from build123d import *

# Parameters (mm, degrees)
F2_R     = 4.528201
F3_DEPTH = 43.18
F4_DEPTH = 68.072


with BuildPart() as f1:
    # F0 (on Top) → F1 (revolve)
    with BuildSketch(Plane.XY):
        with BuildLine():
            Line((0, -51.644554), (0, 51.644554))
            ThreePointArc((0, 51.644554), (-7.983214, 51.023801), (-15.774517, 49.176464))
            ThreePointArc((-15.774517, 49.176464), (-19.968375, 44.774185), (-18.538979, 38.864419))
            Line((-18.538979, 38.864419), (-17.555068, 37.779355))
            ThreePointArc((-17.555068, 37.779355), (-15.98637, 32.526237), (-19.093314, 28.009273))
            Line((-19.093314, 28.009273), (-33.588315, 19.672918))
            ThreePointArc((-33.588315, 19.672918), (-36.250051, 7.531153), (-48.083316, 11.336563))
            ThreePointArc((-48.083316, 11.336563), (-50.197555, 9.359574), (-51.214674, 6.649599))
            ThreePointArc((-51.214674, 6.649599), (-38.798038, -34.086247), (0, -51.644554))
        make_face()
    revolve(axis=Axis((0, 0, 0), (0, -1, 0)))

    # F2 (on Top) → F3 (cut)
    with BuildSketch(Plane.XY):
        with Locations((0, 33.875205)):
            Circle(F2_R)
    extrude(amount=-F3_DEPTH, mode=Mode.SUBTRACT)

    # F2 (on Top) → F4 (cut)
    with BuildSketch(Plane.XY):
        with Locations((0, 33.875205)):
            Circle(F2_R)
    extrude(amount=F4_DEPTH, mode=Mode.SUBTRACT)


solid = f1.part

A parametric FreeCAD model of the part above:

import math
import FreeCAD as App
import Part
import Sketcher
Q = App.Units.Quantity

doc = App.newDocument("Part")
body = doc.addObject("PartDesign::Body", "Body")

# Sketch on XY plane
sketch1 = body.newObject("Sketcher::SketchObject", "Sketch")
sketch1.AttachmentSupport = (doc.getObject("XY_Plane"), [""])
sketch1.MapMode = "FlatFace"
sketch1.addGeometry([
    Part.LineSegment(App.Vector(0, -51.6, 0), App.Vector(0, 51.6, 0)),  # 0
    Part.ArcOfCircle(Part.Circle(App.Vector(0, 0, 0), App.Vector(0, 0, 1), 51.6), math.radians(90), math.radians(107.78)),  # 1
    Part.ArcOfCircle(Part.Circle(App.Vector(-13.8, 43.1, 0), App.Vector(0, 0, 1), 6.3), math.radians(108), math.radians(222)),  # 2
    Part.LineSegment(App.Vector(-18.5, 38.9, 0), App.Vector(-17.6, 37.8, 0)),  # 3
    Part.ArcOfCircle(Part.Circle(App.Vector(-22.3, 33.5, 0), App.Vector(0, 0, 1), 6.3), math.radians(-60), math.radians(42)),  # 4
    Part.LineSegment(App.Vector(-19.1, 28, 0), App.Vector(-33.6, 19.7, 0)),  # 5
    Part.ArcOfCircle(Part.Circle(App.Vector(-40.4, 14.8, 0), App.Vector(0, 0, 1), 8.4), math.radians(-156), math.radians(35)),  # 6
    Part.ArcOfCircle(Part.Circle(App.Vector(-44.9, 5.8, 0), App.Vector(0, 0, 1), 6.4), math.radians(120), math.radians(173)),  # 7
    Part.ArcOfCircle(Part.Circle(App.Vector(0, 0, 0), App.Vector(0, 0, 1), 51.6), math.radians(173), math.radians(270)),  # 8
], False)
sketch1.addConstraint([
    Sketcher.Constraint("Coincident", 0, 2, 1, 1),
    Sketcher.Constraint("Tangent", 1, 2, 2, 1),
    Sketcher.Constraint("Tangent", 2, 2, 3, 1),
    Sketcher.Constraint("Tangent", 3, 2, 4, 2),
    Sketcher.Constraint("Tangent", 4, 1, 5, 1),
    Sketcher.Constraint("Coincident", 5, 2, 6, 2),
    Sketcher.Constraint("Coincident", 6, 1, 7, 1),
    Sketcher.Constraint("Tangent", 7, 2, 8, 1),
    Sketcher.Constraint("Coincident", 8, 2, 0, 1),
    Sketcher.Constraint("Vertical", 0),
    Sketcher.Constraint("Coincident", 1, 3, -1, 1),
    Sketcher.Constraint("Coincident", 8, 3, -1, 1),
    Sketcher.Constraint("Equal", 2, 4),
    Sketcher.Constraint("Symmetric", 0, 2, 8, 2, -1, 1),
    Sketcher.Constraint("Radius", 2, Q("0.25 in")),
    Sketcher.Constraint("Radius", 7, Q("0.2500001 in")),
    Sketcher.Constraint("Radius", 1, Q("51.644557 mm")),
    Sketcher.Constraint("Radius", 6, Q("8.398757 mm")),
    Sketcher.Constraint("DistanceX", 4, 3, -1, 1, Q("22.259099 mm")),
    Sketcher.Constraint("DistanceY", -1, 1, 7, 2, Q("6.649599 mm")),
    Sketcher.Constraint("DistanceY", 3, 2, 0, 2, Q("13.865199 mm")),
    Sketcher.Constraint("DistanceX", 5, 2, 4, 1, Q("14.495001 mm")),
    Sketcher.Constraint("DistanceX", 6, 1, 5, 2, Q("14.495001 mm")),
    Sketcher.Constraint("Distance", 5, Q("16.72124 mm")),
    Sketcher.Constraint("DistanceX", 2, 3, -1, 1, Q("13.834949 mm")),
])
revolution = body.newObject("PartDesign::Revolution", "Revolution")
revolution.Profile = sketch1
revolution.ReferenceAxis = (sketch1, ["V_Axis"])
revolution.Angle = 360

# Sketch on XY plane
sketch2 = body.newObject("Sketcher::SketchObject", "Sketch001")
sketch2.AttachmentSupport = (doc.getObject("XY_Plane"), [""])
sketch2.MapMode = "FlatFace"
sketch2.addGeometry(Part.Circle(App.Vector(0, 33.9, 0), App.Vector(0, 0, 1), 4.5), False)
sketch2.addConstraint([
    Sketcher.Constraint("PointOnObject", 0, 3, -2),
    Sketcher.Constraint("Diameter", 0, Q("9.056402 mm")),
    Sketcher.Constraint("DistanceY", -1, 1, 0, 3, Q("33.875205 mm")),
])
pocket1 = body.newObject("PartDesign::Pocket", "Pocket")
pocket1.Profile = sketch2
pocket1.Length = Q("1.7 in")

# Sketch on XY plane
sketch3 = body.newObject("Sketcher::SketchObject", "Sketch002")
sketch3.AttachmentSupport = (doc.getObject("XY_Plane"), [""])
sketch3.MapMode = "FlatFace"
sketch3.addGeometry(Part.Circle(App.Vector(0, 33.9, 0), App.Vector(0, 0, 1), 4.5), False)
sketch3.addConstraint([
    Sketcher.Constraint("PointOnObject", 0, 3, -2),
    Sketcher.Constraint("Diameter", 0, Q("9.056402 mm")),
    Sketcher.Constraint("DistanceY", -1, 1, 0, 3, Q("33.875205 mm")),
])
pocket2 = body.newObject("PartDesign::Pocket", "Pocket001")
pocket2.Profile = sketch3
pocket2.Length = Q("2.68 in")
pocket2.Reversed = True

doc.recompute()
